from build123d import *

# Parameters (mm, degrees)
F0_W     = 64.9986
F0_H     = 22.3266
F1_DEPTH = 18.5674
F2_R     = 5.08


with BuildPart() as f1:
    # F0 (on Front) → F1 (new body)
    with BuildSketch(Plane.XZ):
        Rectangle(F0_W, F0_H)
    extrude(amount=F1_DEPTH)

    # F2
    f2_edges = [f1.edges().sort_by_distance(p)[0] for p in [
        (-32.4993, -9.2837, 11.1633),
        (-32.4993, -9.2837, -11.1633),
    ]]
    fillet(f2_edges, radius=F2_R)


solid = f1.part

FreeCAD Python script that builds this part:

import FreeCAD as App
import Part
import Sketcher
Q = App.Units.Quantity


def edges_at(feature, points):
    """Names of the edges that pass closest to the given points."""
    edges = feature.Shape.Edges
    near = lambda p: min(range(len(edges)), key=lambda i: edges[i].distToShape(Part.Vertex(*p))[0])
    return sorted({f"Edge{near(p) + 1}" for p in points})

doc = App.newDocument("Part")
body = doc.addObject("PartDesign::Body", "Body")

# Sketch on XZ plane
sketch1 = body.newObject("Sketcher::SketchObject", "Sketch")
sketch1.AttachmentSupport = (doc.getObject("XZ_Plane"), [""])
sketch1.MapMode = "FlatFace"
sketch1.addGeometry(Part.LineSegment(App.Vector(-32, 11, 0), App.Vector(-32, -11, 0)), False)
sketch1.addGeometry(Part.LineSegment(App.Vector(-32, -11, 0), App.Vector(32, -11, 0)), False)
sketch1.addGeometry(Part.LineSegment(App.Vector(32, -11, 0), App.Vector(32, 11, 0)), False)
sketch1.addGeometry(Part.LineSegment(App.Vector(32, 11, 0), App.Vector(-32, 11, 0)), False)
sketch1.addConstraint(Sketcher.Constraint("Coincident", 0, 2, 1, 1))
sketch1.addConstraint(Sketcher.Constraint("Coincident", 1, 2, 2, 1))
sketch1.addConstraint(Sketcher.Constraint("Coincident", 2, 2, 3, 1))
sketch1.addConstraint(Sketcher.Constraint("Coincident", 3, 2, 0, 1))
sketch1.addConstraint(Sketcher.Constraint("Vertical", 0))
sketch1.addConstraint(Sketcher.Constraint("Horizontal", 1))
sketch1.addConstraint(Sketcher.Constraint("Vertical", 2))
sketch1.addConstraint(Sketcher.Constraint("Horizontal", 3))
sketch1.addConstraint(Sketcher.Constraint("Symmetric", 0, 2, 2, 2, -1, 1))
sketch1.addConstraint(Sketcher.Constraint("DistanceX", 1, 1, 1, 2, Q("2.559 in")))
sketch1.addConstraint(Sketcher.Constraint("DistanceY", 0, 2, 0, 1, Q("0.879 in")))
pad1 = body.newObject("PartDesign::Pad", "Pad")
pad1.Profile = sketch1
pad1.Length = Q("0.731 in")
doc.recompute()

fillet = body.newObject("PartDesign::Fillet", "Fillet")
fillet.Base = (pad1, edges_at(pad1, [(-32.499, -9.284, 11.163), (-32.499, -9.284, -11.163)]))
fillet.Radius = Q("0.2 in")

doc.recompute()
